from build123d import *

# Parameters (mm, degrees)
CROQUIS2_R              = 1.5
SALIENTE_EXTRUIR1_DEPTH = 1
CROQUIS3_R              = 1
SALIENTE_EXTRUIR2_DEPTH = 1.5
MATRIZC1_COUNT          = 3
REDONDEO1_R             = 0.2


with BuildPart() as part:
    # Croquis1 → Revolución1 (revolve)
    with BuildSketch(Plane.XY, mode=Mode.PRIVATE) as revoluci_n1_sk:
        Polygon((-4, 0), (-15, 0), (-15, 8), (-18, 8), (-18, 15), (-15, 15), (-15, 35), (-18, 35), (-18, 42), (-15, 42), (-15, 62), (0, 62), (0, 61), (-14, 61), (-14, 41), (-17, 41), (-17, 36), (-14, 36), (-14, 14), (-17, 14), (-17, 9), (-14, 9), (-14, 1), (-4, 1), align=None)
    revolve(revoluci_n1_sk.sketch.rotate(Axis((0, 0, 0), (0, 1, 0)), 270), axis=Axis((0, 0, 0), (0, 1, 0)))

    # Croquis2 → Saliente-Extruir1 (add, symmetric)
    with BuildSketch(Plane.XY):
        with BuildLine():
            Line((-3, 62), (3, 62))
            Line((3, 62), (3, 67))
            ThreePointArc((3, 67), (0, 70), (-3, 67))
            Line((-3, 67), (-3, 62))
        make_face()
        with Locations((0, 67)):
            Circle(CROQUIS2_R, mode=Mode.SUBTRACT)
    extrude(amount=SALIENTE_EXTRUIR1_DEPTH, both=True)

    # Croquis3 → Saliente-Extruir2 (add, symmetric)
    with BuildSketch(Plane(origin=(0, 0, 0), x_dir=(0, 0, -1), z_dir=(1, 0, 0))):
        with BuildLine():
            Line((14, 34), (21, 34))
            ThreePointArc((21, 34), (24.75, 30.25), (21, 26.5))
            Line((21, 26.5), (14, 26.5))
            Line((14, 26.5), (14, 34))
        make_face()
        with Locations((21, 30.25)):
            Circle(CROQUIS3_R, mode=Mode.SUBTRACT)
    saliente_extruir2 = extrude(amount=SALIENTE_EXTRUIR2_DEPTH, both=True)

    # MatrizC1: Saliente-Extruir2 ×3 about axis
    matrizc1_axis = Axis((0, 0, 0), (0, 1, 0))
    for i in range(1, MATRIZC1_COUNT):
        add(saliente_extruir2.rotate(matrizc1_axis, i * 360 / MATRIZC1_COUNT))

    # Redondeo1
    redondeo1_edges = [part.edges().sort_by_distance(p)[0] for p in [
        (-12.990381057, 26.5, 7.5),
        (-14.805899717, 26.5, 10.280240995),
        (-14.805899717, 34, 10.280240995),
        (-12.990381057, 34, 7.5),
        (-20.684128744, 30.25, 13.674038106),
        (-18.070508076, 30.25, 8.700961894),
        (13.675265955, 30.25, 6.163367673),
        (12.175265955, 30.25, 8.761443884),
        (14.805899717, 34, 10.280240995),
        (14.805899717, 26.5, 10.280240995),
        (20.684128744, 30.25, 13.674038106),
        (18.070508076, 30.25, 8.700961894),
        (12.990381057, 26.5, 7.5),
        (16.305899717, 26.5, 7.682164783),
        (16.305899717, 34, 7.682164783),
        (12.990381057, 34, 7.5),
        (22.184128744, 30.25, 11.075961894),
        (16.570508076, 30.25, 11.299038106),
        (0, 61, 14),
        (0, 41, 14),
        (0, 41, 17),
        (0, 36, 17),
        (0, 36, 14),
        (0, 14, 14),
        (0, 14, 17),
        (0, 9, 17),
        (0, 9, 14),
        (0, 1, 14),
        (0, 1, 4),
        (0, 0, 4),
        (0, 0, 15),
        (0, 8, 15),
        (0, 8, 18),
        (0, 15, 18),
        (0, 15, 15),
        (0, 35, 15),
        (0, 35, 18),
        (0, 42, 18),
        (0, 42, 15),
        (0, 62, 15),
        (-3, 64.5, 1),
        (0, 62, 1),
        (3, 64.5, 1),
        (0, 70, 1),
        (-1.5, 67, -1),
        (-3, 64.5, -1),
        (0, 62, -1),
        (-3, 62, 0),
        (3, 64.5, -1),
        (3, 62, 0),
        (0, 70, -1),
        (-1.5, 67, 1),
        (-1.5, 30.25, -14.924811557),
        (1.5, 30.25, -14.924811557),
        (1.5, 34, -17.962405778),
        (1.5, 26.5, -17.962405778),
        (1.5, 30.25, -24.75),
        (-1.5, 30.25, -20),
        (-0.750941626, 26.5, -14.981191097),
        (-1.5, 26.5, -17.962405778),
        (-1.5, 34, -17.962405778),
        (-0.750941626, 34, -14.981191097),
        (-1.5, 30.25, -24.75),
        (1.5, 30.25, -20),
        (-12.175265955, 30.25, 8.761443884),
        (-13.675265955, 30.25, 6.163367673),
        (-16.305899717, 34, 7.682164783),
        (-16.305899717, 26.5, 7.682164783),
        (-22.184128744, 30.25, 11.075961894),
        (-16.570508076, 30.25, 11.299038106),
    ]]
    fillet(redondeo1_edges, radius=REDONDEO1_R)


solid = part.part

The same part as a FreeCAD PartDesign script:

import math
import FreeCAD as App
import Part
import Sketcher

V = App.Vector
Q = App.Units.Quantity

doc = App.newDocument("Part")
body = doc.addObject("PartDesign::Body", "Body")

sketch1 = body.newObject("Sketcher::SketchObject", "Sketch")
sketch1.AttachmentSupport = (doc.getObject("XY_Plane"), [""])
sketch1.MapMode = "FlatFace"
sketch1.addGeometry(Part.LineSegment(V(-15, 0, 0), V(-4, 0, 0)), False)
sketch1.addGeometry(Part.LineSegment(V(-4, 0, 0), V(-4, 1, 0)), False)
sketch1.addGeometry(Part.LineSegment(V(-4, 1, 0), V(-14, 1, 0)), False)
sketch1.addGeometry(Part.LineSegment(V(-14, 1, 0), V(-14, 9, 0)), False)
sketch1.addGeometry(Part.LineSegment(V(-14, 9, 0), V(-17, 9, 0)), False)
sketch1.addGeometry(Part.LineSegment(V(-17, 9, 0), V(-17, 14, 0)), False)
sketch1.addGeometry(Part.LineSegment(V(-17, 14, 0), V(-14, 14, 0)), False)
sketch1.addGeometry(Part.LineSegment(V(-14, 14, 0), V(-14, 36, 0)), False)
sketch1.addGeometry(Part.LineSegment(V(-14, 36, 0), V(-17, 36, 0)), False)
sketch1.addGeometry(Part.LineSegment(V(-17, 36, 0), V(-17, 41, 0)), False)
sketch1.addGeometry(Part.LineSegment(V(-17, 41, 0), V(-14, 41, 0)), False)
sketch1.addGeometry(Part.LineSegment(V(-14, 41, 0), V(-14, 61, 0)), False)
sketch1.addGeometry(Part.LineSegment(V(-14, 61, 0), V(0, 61, 0)), False)
sketch1.addGeometry(Part.LineSegment(V(0, 61, 0), V(0, 62, 0)), False)
sketch1.addGeometry(Part.LineSegment(V(0, 62, 0), V(-15, 62, 0)), False)
sketch1.addGeometry(Part.LineSegment(V(-15, 62, 0), V(-15, 42, 0)), False)
sketch1.addGeometry(Part.LineSegment(V(-15, 42, 0), V(-18, 42, 0)), False)
sketch1.addGeometry(Part.LineSegment(V(-18, 42, 0), V(-18, 35, 0)), False)
sketch1.addGeometry(Part.LineSegment(V(-18, 35, 0), V(-15, 35, 0)), False)
sketch1.addGeometry(Part.LineSegment(V(-15, 35, 0), V(-15, 15, 0)), False)
sketch1.addGeometry(Part.LineSegment(V(-15, 15, 0), V(-18, 15, 0)), False)
sketch1.addGeometry(Part.LineSegment(V(-18, 15, 0), V(-18, 8, 0)), False)
sketch1.addGeometry(Part.LineSegment(V(-18, 8, 0), V(-15, 8, 0)), False)
sketch1.addGeometry(Part.LineSegment(V(-15, 8, 0), V(-15, 0, 0)), False)
sketch1.addConstraint(Sketcher.Constraint("Coincident", 0, 2, 1, 1))
sketch1.addConstraint(Sketcher.Constraint("Coincident", 1, 2, 2, 1))
sketch1.addConstraint(Sketcher.Constraint("Coincident", 2, 2, 3, 1))
sketch1.addConstraint(Sketcher.Constraint("Coincident", 3, 2, 4, 1))
sketch1.addConstraint(Sketcher.Constraint("Coincident", 4, 2, 5, 1))
sketch1.addConstraint(Sketcher.Constraint("Coincident", 5, 2, 6, 1))
sketch1.addConstraint(Sketcher.Constraint("Coincident", 6, 2, 7, 1))
sketch1.addConstraint(Sketcher.Constraint("Coincident", 7, 2, 8, 1))
sketch1.addConstraint(Sketcher.Constraint("Coincident", 8, 2, 9, 1))
sketch1.addConstraint(Sketcher.Constraint("Coincident", 9, 2, 10, 1))
sketch1.addConstraint(Sketcher.Constraint("Coincident", 10, 2, 11, 1))
sketch1.addConstraint(Sketcher.Constraint("Coincident", 11, 2, 12, 1))
sketch1.addConstraint(Sketcher.Constraint("Coincident", 12, 2, 13, 1))
sketch1.addConstraint(Sketcher.Constraint("Coincident", 13, 2, 14, 1))
sketch1.addConstraint(Sketcher.Constraint("Coincident", 14, 2, 15, 1))
sketch1.addConstraint(Sketcher.Constraint("Coincident", 15, 2, 16, 1))
sketch1.addConstraint(Sketcher.Constraint("Coincident", 16, 2, 17, 1))
sketch1.addConstraint(Sketcher.Constraint("Coincident", 17, 2, 18, 1))
sketch1.addConstraint(Sketcher.Constraint("Coincident", 18, 2, 19, 1))
sketch1.addConstraint(Sketcher.Constraint("Coincident", 19, 2, 20, 1))
sketch1.addConstraint(Sketcher.Constraint("Coincident", 20, 2, 21, 1))
sketch1.addConstraint(Sketcher.Constraint("Coincident", 21, 2, 22, 1))
sketch1.addConstraint(Sketcher.Constraint("Coincident", 22, 2, 23, 1))
sketch1.addConstraint(Sketcher.Constraint("Coincident", 23, 2, 0, 1))
sketch1.addConstraint(Sketcher.Constraint("Horizontal", 0))
sketch1.addConstraint(Sketcher.Constraint("Vertical", 1))
sketch1.addConstraint(Sketcher.Constraint("Horizontal", 2))
sketch1.addConstraint(Sketcher.Constraint("Vertical", 3))
sketch1.addConstraint(Sketcher.Constraint("Horizontal", 4))
sketch1.addConstraint(Sketcher.Constraint("Vertical", 5))
sketch1.addConstraint(Sketcher.Constraint("Horizontal", 6))
sketch1.addConstraint(Sketcher.Constraint("Vertical", 7))
sketch1.addConstraint(Sketcher.Constraint("Horizontal", 8))
sketch1.addConstraint(Sketcher.Constraint("Vertical", 9))
sketch1.addConstraint(Sketcher.Constraint("Horizontal", 10))
sketch1.addConstraint(Sketcher.Constraint("Vertical", 11))
sketch1.addConstraint(Sketcher.Constraint("Horizontal", 12))
sketch1.addConstraint(Sketcher.Constraint("Vertical", 13))
sketch1.addConstraint(Sketcher.Constraint("Horizontal", 14))
sketch1.addConstraint(Sketcher.Constraint("Vertical", 15))
sketch1.addConstraint(Sketcher.Constraint("Horizontal", 16))
sketch1.addConstraint(Sketcher.Constraint("Vertical", 17))
sketch1.addConstraint(Sketcher.Constraint("Horizontal", 18))
sketch1.addConstraint(Sketcher.Constraint("Vertical", 19))
sketch1.addConstraint(Sketcher.Constraint("Horizontal", 20))
sketch1.addConstraint(Sketcher.Constraint("Vertical", 21))
sketch1.addConstraint(Sketcher.Constraint("Horizontal", 22))
sketch1.addConstraint(Sketcher.Constraint("Vertical", 23))
sketch1.addConstraint(Sketcher.Constraint("PointOnObject", 0, 2, -1))
sketch1.addConstraint(Sketcher.Constraint("PointOnObject", 12, 2, -2))
sketch1.addConstraint(Sketcher.Constraint("Vertical", 3, 2, 6, 2))
sketch1.addConstraint(Sketcher.Constraint("Vertical", 5, 2, 8, 2))
sketch1.addConstraint(Sketcher.Constraint("Vertical", 7, 2, 10, 2))
sketch1.addConstraint(Sketcher.Constraint("Vertical", 15, 2, 18, 2))
sketch1.addConstraint(Sketcher.Constraint("Vertical", 17, 2, 20, 2))
sketch1.addConstraint(Sketcher.Constraint("Vertical", 19, 2, 22, 2))
sketch1.addConstraint(Sketcher.Constraint("Equal", 10, 16))
sketch1.addConstraint(Sketcher.Constraint("Equal", 5, 9))
sketch1.addConstraint(Sketcher.Constraint("Equal", 1, 13))
sketch1.addConstraint(Sketcher.Constraint("Equal", 11, 15))
sketch1.addConstraint(Sketcher.Constraint("Equal", 15, 19))
sketch1.addConstraint(Sketcher.Constraint("Equal", 17, 21))
sketch1.addConstraint(Sketcher.Constraint("Equal", 3, 23))
sketch1.addConstraint(Sketcher.Constraint("DistanceX", 0, 1, 0, 2, Q("11 mm")))
sketch1.addConstraint(Sketcher.Constraint("DistanceX", 2, 2, 2, 1, Q("10 mm")))
sketch1.addConstraint(Sketcher.Constraint("DistanceX", 4, 2, 4, 1, Q("3 mm")))
sketch1.addConstraint(Sketcher.Constraint("DistanceX", 12, 1, 12, 2, Q("14 mm")))
sketch1.addConstraint(Sketcher.Constraint("DistanceY", 1, 1, 1, 2, Q("1 mm")))
sketch1.addConstraint(Sketcher.Constraint("DistanceY", 3, 1, 3, 2, Q("8 mm")))
sketch1.addConstraint(Sketcher.Constraint("DistanceY", 5, 1, 5, 2, Q("5 mm")))
sketch1.addConstraint(Sketcher.Constraint("DistanceY", 7, 1, 7, 2, Q("22 mm")))
sketch1.addConstraint(Sketcher.Constraint("DistanceY", 11, 1, 11, 2, Q("20 mm")))
revolution = body.newObject("PartDesign::Revolution", "Revolution")
revolution.Profile = sketch1
revolution.ReferenceAxis = (sketch1, ["V_Axis"])
revolution.Angle = 360

sketch2 = body.newObject("Sketcher::SketchObject", "Sketch001")
sketch2.AttachmentSupport = (doc.getObject("XY_Plane"), [""])
sketch2.MapMode = "FlatFace"
sketch2.addGeometry(Part.LineSegment(V(-3, 62, 0), V(3, 62, 0)), False)
sketch2.addGeometry(Part.LineSegment(V(3, 62, 0), V(3, 67, 0)), False)
sketch2.addGeometry(Part.ArcOfCircle(Part.Circle(V(0, 67, 0), V(0, 0, 1), 3), math.radians(0), math.radians(180)), False)
sketch2.addGeometry(Part.LineSegment(V(-3, 67, 0), V(-3, 62, 0)), False)
sketch2.addGeometry(Part.Circle(V(0, 67, 0), V(0, 0, 1), 1.5), False)
sketch2.addConstraint(Sketcher.Constraint("Coincident", 0, 2, 1, 1))
sketch2.addConstraint(Sketcher.Constraint("Tangent", 1, 2, 2, 1))
sketch2.addConstraint(Sketcher.Constraint("Tangent", 2, 2, 3, 1))
sketch2.addConstraint(Sketcher.Constraint("Coincident", 3, 2, 0, 1))
sketch2.addConstraint(Sketcher.Constraint("Horizontal", 0))
sketch2.addConstraint(Sketcher.Constraint("Vertical", 1))
sketch2.addConstraint(Sketcher.Constraint("Vertical", 3))
sketch2.addConstraint(Sketcher.Constraint("Coincident", 4, 3, 2, 3))
sketch2.addConstraint(Sketcher.Constraint("PointOnObject", 2, 3, -2))
sketch2.addConstraint(Sketcher.Constraint("Diameter", 4, Q("3 mm")))
sketch2.addConstraint(Sketcher.Constraint("Radius", 2, Q("3 mm")))
sketch2.addConstraint(Sketcher.Constraint("DistanceY", 1, 1, 1, 2, Q("5 mm")))
sketch2.addConstraint(Sketcher.Constraint("DistanceY", -1, 1, 2, 3, Q("67 mm")))
pad1 = body.newObject("PartDesign::Pad", "Pad")
pad1.Profile = sketch2
pad1.Length = 2
pad1.Midplane = True

sketch3 = body.newObject("Sketcher::SketchObject", "Sketch002")
sketch3.AttachmentSupport = (doc.getObject("YZ_Plane"), [""])
sketch3.MapMode = "FlatFace"
sketch3.addGeometry(Part.LineSegment(V(34, -21, 0), V(34, -14, 0)), False)
sketch3.addGeometry(Part.LineSegment(V(34, -14, 0), V(26.5, -14, 0)), False)
sketch3.addGeometry(Part.LineSegment(V(26.5, -14, 0), V(26.5, -21, 0)), False)
sketch3.addGeometry(Part.ArcOfCircle(Part.Circle(V(30.25, -21, 0), V(0, 0, 1), 3.75), math.radians(180), math.radians(360)), False)
sketch3.addGeometry(Part.Circle(V(30.25, -21, 0), V(0, 0, 1), 1), False)
sketch3.addConstraint(Sketcher.Constraint("Coincident", 0, 2, 1, 1))
sketch3.addConstraint(Sketcher.Constraint("Coincident", 1, 2, 2, 1))
sketch3.addConstraint(Sketcher.Constraint("Tangent", 2, 2, 3, 1))
sketch3.addConstraint(Sketcher.Constraint("Tangent", 3, 2, 0, 1))
sketch3.addConstraint(Sketcher.Constraint("Vertical", 0))
sketch3.addConstraint(Sketcher.Constraint("Horizontal", 1))
sketch3.addConstraint(Sketcher.Constraint("Vertical", 2))
sketch3.addConstraint(Sketcher.Constraint("Coincident", 4, 3, 3, 3))
sketch3.addConstraint(Sketcher.Constraint("Diameter", 4, Q("2 mm")))
sketch3.addConstraint(Sketcher.Constraint("DistanceY", 0, 1, 0, 2, Q("7 mm")))
sketch3.addConstraint(Sketcher.Constraint("Radius", 3, Q("3.75 mm")))
sketch3.addConstraint(Sketcher.Constraint("DistanceY", 3, 3, -1, 1, Q("21 mm")))
sketch3.addConstraint(Sketcher.Constraint("DistanceX", -1, 1, 0, 2, Q("34 mm")))
pad2 = body.newObject("PartDesign::Pad", "Pad001")
pad2.Profile = sketch3
pad2.Length = 3
pad2.Midplane = True
doc.recompute()

polarpattern = body.newObject("PartDesign::PolarPattern", "PolarPattern")
polarpattern.Originals = [pad2]
polarpattern.Axis = (doc.getObject("Y_Axis"), [""])
polarpattern.Angle = 360
polarpattern.Occurrences = 3
body.Tip = polarpattern
doc.recompute()

fillet = body.newObject("PartDesign::Fillet", "Fillet")
fillet.Base = (polarpattern, ["Edge1"])
fillet.UseAllEdges = True
fillet.Radius = 0.2

doc.recompute()
